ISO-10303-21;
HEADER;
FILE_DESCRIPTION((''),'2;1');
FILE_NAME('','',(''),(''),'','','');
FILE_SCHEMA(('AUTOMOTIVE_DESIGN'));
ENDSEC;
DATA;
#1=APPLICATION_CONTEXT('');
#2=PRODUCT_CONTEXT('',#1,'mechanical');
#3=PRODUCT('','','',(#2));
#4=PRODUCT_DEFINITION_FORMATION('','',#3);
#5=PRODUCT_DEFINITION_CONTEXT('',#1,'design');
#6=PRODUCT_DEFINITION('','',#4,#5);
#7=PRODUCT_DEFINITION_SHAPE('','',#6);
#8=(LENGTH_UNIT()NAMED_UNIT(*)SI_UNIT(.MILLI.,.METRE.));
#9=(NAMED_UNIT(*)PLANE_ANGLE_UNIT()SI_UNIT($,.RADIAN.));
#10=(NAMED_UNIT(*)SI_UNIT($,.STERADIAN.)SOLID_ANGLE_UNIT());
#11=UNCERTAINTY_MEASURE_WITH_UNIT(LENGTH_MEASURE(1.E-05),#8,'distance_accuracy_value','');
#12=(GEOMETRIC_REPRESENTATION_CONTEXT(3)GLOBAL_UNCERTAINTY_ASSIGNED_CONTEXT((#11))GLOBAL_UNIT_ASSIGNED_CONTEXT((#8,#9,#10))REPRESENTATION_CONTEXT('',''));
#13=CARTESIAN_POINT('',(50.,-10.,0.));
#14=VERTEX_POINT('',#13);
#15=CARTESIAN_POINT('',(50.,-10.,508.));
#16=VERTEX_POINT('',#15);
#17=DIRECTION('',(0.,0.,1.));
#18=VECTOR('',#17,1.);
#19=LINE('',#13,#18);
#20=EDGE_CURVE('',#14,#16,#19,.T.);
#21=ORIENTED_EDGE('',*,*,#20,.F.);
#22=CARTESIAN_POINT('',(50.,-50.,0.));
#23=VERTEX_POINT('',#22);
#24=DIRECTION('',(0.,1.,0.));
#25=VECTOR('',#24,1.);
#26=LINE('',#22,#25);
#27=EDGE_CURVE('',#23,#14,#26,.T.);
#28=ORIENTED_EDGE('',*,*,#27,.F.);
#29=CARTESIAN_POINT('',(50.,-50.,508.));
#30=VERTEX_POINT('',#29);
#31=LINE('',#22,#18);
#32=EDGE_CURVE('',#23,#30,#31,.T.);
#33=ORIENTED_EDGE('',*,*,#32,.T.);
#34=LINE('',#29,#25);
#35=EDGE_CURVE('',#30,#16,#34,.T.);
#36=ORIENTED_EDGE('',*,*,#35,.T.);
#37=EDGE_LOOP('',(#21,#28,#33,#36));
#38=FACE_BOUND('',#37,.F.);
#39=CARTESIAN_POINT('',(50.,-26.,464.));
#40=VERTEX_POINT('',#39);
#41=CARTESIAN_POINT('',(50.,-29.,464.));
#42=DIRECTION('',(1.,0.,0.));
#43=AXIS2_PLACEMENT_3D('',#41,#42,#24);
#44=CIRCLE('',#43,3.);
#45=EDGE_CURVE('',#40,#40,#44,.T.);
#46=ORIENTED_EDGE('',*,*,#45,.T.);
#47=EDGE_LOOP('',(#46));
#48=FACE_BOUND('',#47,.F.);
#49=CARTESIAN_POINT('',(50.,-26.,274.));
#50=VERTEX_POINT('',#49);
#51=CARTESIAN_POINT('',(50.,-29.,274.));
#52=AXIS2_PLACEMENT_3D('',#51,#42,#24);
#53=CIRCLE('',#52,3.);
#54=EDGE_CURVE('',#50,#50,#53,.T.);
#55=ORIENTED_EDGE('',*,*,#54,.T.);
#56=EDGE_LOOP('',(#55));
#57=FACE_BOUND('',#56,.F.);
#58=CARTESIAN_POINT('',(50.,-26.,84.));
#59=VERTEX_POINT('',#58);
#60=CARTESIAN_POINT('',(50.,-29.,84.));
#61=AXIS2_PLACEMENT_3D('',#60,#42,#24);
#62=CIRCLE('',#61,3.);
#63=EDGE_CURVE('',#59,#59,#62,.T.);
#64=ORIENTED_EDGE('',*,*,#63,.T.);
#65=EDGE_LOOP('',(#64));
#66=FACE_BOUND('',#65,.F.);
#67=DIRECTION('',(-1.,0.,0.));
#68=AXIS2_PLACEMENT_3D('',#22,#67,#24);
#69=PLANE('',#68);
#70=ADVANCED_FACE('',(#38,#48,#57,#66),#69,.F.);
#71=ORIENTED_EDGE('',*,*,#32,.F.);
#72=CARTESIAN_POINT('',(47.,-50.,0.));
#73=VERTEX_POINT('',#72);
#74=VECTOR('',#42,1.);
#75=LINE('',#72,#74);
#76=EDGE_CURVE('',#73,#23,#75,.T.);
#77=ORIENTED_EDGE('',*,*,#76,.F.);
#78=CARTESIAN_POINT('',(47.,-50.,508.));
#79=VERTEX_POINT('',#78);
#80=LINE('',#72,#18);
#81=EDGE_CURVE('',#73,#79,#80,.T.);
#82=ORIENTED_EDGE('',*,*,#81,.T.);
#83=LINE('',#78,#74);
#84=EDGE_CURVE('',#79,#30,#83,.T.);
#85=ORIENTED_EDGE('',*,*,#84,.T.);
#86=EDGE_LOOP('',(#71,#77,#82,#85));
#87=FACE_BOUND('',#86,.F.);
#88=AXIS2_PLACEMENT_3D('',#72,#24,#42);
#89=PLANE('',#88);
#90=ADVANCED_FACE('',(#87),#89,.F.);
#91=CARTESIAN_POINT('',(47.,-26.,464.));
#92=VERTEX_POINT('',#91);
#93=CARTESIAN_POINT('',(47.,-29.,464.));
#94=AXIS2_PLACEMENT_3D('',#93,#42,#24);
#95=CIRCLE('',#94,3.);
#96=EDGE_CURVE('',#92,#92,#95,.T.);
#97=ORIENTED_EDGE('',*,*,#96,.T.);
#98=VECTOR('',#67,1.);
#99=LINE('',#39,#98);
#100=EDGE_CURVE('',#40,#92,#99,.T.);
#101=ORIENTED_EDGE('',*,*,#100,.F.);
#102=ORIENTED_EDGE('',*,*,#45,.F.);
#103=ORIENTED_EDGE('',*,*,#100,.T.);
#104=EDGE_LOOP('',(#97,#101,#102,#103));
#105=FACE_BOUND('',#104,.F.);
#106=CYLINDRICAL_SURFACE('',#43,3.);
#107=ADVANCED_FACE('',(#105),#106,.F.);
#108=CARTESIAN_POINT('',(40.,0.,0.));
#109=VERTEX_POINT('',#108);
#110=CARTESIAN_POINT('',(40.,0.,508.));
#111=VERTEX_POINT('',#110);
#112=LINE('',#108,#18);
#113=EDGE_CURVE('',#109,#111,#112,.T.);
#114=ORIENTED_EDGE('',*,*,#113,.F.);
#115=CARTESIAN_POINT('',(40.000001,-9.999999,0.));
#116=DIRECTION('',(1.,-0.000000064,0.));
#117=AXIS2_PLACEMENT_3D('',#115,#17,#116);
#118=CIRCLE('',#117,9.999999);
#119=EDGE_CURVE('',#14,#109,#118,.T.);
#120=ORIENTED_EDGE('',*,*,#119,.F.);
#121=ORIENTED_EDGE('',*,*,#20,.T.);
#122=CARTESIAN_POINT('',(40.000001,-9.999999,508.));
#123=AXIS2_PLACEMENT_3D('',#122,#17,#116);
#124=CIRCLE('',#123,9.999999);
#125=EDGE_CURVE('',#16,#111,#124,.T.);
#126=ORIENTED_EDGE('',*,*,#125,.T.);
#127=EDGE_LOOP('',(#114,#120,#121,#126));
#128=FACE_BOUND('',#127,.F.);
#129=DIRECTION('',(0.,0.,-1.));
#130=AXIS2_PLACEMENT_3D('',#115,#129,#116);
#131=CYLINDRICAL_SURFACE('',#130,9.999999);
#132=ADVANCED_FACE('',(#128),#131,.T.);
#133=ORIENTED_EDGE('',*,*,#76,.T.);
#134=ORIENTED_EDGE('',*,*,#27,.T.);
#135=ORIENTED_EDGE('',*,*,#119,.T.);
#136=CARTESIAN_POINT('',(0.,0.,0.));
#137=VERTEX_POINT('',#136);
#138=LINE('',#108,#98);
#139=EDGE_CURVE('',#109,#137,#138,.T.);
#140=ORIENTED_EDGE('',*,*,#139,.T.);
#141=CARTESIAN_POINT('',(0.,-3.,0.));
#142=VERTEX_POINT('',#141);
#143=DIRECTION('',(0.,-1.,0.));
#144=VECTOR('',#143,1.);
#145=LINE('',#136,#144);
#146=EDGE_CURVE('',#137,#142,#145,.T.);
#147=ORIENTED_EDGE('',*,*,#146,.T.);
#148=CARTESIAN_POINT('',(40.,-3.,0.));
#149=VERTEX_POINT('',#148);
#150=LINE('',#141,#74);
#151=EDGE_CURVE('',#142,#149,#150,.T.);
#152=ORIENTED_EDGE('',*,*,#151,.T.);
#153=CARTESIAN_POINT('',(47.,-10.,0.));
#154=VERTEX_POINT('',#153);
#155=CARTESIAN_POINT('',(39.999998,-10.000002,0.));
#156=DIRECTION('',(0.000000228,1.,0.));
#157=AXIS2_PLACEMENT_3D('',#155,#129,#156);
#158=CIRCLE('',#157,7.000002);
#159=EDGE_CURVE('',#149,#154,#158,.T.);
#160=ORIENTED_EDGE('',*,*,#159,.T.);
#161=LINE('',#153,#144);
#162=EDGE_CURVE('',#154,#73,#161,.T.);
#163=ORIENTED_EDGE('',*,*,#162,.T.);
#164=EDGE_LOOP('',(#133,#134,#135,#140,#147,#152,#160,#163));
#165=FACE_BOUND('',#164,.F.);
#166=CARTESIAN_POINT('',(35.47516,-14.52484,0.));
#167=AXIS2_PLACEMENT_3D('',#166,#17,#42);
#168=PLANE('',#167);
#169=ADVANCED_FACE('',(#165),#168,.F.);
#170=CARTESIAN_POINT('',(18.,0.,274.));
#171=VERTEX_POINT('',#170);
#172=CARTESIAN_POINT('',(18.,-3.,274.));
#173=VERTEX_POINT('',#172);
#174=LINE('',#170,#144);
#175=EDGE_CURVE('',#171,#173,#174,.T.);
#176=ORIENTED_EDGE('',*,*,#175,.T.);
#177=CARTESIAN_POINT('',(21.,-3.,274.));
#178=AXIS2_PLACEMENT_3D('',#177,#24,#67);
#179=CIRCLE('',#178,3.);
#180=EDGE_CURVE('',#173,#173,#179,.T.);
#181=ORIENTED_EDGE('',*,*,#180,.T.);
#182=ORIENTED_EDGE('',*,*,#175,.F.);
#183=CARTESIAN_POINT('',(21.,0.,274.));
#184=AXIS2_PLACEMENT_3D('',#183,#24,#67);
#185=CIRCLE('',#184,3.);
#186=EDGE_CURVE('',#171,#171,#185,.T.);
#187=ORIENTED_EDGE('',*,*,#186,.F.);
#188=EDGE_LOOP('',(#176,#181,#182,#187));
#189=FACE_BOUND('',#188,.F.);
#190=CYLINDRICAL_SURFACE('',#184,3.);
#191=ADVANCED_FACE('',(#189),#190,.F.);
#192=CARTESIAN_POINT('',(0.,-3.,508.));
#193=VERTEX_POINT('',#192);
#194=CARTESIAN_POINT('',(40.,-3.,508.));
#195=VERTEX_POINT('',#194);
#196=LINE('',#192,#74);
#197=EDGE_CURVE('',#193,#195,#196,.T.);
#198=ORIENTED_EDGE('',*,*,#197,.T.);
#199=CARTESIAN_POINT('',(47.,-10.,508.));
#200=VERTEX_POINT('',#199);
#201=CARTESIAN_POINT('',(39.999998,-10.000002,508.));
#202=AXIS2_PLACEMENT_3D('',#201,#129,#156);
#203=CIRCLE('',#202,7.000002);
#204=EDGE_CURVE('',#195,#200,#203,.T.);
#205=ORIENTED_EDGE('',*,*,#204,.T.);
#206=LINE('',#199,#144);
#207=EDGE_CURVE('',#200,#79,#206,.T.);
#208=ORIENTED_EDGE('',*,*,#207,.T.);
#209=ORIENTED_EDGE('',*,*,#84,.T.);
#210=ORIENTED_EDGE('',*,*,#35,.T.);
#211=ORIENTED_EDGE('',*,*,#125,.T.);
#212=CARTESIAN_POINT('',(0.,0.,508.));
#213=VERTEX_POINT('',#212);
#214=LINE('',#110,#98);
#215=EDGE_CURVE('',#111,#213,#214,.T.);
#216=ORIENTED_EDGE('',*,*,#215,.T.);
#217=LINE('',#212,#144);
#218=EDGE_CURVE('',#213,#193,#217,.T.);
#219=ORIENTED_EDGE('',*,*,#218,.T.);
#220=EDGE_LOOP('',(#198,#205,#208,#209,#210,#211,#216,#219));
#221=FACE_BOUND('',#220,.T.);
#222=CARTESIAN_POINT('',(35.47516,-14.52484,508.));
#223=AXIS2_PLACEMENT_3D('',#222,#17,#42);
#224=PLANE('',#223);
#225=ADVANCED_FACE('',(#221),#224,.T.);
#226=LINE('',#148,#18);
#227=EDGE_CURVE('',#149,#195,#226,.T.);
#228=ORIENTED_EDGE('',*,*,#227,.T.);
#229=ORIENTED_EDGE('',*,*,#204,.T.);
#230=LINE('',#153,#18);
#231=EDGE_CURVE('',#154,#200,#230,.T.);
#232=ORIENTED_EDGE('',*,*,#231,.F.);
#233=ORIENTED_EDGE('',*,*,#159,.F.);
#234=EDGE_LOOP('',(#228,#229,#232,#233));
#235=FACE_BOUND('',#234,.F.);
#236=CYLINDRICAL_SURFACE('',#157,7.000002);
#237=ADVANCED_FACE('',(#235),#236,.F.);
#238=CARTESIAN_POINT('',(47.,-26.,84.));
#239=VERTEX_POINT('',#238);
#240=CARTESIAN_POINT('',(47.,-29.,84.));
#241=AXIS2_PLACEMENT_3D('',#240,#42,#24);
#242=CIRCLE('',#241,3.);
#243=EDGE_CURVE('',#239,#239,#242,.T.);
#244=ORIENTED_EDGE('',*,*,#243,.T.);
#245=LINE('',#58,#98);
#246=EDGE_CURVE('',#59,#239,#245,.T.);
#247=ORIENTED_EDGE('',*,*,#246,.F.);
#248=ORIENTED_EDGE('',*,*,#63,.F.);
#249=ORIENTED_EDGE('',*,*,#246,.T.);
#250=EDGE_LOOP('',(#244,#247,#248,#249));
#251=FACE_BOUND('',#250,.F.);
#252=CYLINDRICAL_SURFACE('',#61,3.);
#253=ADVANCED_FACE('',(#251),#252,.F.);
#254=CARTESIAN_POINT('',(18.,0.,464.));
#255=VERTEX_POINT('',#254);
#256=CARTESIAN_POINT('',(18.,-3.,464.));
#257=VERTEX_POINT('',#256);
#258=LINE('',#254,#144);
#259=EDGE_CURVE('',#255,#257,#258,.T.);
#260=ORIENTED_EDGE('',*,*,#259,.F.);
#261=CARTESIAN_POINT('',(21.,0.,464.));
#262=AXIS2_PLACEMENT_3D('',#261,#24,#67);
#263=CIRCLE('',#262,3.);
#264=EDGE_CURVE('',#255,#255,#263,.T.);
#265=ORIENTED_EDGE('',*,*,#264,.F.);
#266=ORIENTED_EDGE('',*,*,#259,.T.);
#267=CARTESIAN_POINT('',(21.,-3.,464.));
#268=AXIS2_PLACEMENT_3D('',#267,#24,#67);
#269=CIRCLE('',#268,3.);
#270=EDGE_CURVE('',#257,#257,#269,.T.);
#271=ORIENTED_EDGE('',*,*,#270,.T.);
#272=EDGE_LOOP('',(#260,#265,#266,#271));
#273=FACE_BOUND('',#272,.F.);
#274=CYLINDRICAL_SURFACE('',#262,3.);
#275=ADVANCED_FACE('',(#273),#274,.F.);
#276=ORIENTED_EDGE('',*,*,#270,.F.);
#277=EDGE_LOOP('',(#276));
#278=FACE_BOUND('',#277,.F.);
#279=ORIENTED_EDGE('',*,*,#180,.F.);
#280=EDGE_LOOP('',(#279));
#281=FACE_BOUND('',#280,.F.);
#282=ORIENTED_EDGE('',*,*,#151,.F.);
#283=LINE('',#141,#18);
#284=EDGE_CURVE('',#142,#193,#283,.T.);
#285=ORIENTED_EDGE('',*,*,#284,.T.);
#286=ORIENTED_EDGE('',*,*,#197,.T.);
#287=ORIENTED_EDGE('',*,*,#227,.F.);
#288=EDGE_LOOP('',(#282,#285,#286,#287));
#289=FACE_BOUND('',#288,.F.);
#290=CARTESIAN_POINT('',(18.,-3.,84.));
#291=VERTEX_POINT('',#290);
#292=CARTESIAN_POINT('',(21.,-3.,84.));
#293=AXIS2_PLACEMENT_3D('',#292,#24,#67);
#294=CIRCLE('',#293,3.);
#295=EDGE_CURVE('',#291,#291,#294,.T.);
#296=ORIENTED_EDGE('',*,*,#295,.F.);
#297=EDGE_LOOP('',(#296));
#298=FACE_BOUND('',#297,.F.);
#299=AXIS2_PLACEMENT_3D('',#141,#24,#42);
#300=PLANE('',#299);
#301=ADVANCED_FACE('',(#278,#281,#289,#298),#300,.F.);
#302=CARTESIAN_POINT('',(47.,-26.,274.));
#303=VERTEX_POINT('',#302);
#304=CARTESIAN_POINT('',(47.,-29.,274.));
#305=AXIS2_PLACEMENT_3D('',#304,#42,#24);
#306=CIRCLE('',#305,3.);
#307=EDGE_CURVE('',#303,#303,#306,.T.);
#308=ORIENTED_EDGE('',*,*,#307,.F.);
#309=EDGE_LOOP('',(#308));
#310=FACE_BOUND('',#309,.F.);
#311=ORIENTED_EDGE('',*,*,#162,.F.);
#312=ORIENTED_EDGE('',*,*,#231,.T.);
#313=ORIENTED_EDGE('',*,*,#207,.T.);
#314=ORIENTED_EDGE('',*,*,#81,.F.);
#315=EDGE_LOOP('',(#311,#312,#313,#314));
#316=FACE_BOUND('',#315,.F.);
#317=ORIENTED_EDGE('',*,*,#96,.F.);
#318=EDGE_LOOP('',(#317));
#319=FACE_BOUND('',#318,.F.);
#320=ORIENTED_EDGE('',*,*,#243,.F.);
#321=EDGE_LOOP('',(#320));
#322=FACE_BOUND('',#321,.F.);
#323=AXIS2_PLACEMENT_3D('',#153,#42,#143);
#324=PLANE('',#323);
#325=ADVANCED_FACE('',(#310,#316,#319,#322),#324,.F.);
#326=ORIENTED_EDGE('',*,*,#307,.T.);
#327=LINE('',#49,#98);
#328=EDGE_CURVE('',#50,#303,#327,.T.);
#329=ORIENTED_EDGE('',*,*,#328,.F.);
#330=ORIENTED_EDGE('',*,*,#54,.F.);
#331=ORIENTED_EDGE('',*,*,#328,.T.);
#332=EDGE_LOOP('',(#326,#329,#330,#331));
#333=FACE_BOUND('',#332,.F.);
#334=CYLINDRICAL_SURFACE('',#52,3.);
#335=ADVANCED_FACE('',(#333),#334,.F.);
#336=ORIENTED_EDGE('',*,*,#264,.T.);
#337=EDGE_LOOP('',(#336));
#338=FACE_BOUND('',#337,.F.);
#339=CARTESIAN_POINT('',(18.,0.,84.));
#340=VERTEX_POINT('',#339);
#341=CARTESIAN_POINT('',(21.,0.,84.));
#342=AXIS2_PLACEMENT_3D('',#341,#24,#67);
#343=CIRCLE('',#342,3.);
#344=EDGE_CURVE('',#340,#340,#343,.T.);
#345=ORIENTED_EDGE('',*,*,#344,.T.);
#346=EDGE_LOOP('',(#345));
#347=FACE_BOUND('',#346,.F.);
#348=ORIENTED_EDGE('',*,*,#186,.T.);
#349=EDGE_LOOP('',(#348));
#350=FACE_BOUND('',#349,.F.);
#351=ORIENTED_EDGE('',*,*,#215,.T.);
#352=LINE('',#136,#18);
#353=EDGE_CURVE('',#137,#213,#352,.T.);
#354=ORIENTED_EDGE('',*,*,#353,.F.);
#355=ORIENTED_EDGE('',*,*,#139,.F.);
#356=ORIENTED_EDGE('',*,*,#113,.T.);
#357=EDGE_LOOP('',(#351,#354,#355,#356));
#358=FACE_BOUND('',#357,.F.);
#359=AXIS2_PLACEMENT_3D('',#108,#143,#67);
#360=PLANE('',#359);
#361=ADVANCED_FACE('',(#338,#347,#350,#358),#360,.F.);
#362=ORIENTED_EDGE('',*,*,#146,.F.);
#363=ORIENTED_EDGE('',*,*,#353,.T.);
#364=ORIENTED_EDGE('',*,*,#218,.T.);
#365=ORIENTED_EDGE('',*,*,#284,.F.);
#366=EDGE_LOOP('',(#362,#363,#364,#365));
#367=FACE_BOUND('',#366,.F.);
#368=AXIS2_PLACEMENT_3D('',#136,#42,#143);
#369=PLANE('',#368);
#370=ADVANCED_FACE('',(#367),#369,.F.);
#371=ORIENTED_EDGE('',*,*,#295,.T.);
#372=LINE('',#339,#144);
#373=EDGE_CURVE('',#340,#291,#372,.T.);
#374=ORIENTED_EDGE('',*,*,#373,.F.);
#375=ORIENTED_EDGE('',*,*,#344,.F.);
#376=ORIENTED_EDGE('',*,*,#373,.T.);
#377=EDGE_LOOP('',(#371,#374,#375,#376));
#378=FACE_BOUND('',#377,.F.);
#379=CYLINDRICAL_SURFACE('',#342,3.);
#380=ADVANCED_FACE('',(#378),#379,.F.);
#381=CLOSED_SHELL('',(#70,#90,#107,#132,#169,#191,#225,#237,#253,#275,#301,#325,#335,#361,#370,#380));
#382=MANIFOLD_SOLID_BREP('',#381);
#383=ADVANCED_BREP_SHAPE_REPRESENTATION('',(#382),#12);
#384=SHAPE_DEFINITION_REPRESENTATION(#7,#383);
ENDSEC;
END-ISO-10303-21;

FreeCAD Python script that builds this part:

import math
import FreeCAD as App
import Part
import Sketcher
from FreeCAD import Vector
Q = App.Units.Quantity

doc = App.newDocument("Part")
body = doc.addObject("PartDesign::Body", "Body")

# Sketch on XY plane
sketch1 = body.newObject("Sketcher::SketchObject", "Sketch")
sketch1.AttachmentSupport = (doc.getObject("XY_Plane"), [""])
sketch1.MapMode = "FlatFace"
sketch1.addGeometry([
    Part.LineSegment(Vector(40, 0, 0), Vector(0, 0, 0)),  # 0
    Part.LineSegment(Vector(0, 0, 0), Vector(0, -3, 0)),  # 1
    Part.LineSegment(Vector(0, -3, 0), Vector(40, -3, 0)),  # 2
    Part.ArcOfCircle(Part.Circle(Vector(40, -10, 0), Vector(0, 0, 1), 7), math.radians(0), math.radians(90)),  # 3
    Part.LineSegment(Vector(47, -10, 0), Vector(47, -50, 0)),  # 4
    Part.LineSegment(Vector(47, -50, 0), Vector(50, -50, 0)),  # 5
    Part.LineSegment(Vector(50, -50, 0), Vector(50, -10, 0)),  # 6
    Part.ArcOfCircle(Part.Circle(Vector(40, -10, 0), Vector(0, 0, 1), 10), math.radians(0), math.radians(90)),  # 7
], False)
sketch1.addConstraint([
    Sketcher.Constraint("Coincident", 0, 2, 1, 1),
    Sketcher.Constraint("Coincident", 1, 2, 2, 1),
    Sketcher.Constraint("Tangent", 2, 2, 3, 2),
    Sketcher.Constraint("Tangent", 3, 1, 4, 1),
    Sketcher.Constraint("Coincident", 4, 2, 5, 1),
    Sketcher.Constraint("Coincident", 5, 2, 6, 1),
    Sketcher.Constraint("Tangent", 6, 2, 7, 1),
    Sketcher.Constraint("Tangent", 7, 2, 0, 1),
    Sketcher.Constraint("Horizontal", 0),
    Sketcher.Constraint("Vertical", 1),
    Sketcher.Constraint("Horizontal", 2),
    Sketcher.Constraint("Vertical", 4),
    Sketcher.Constraint("Horizontal", 5),
    Sketcher.Constraint("Vertical", 6),
    Sketcher.Constraint("Coincident", 0, 2, -1, 1),
    Sketcher.Constraint("Coincident", 7, 3, 3, 3),
    Sketcher.Constraint("Equal", 2, 4),
    Sketcher.Constraint("Radius", 3, Q("7.000002 mm")),
    Sketcher.Constraint("Radius", 7, Q("9.999999 mm")),
    Sketcher.Constraint("DistanceX", 0, 2, 0, 1, Q("40 mm")),
])
pad1 = body.newObject("PartDesign::Pad", "Pad")
pad1.Profile = sketch1
pad1.Length = 508

# Sketch on XZ plane
sketch2 = body.newObject("Sketcher::SketchObject", "Sketch001")
sketch2.AttachmentSupport = (doc.getObject("XZ_Plane"), [""])
sketch2.MapMode = "FlatFace"
sketch2.addGeometry([
    Part.Circle(Vector(21, 464, 0), Vector(0, 0, 1), 3),
    Part.Circle(Vector(21, 274, 0), Vector(0, 0, 1), 3),
    Part.Circle(Vector(21, 84, 0), Vector(0, 0, 1), 3),
], False)
sketch2.addConstraint([
    Sketcher.Constraint("Equal", 0, 1),
    Sketcher.Constraint("Equal", 1, 2),
    Sketcher.Constraint("Vertical", 0, 3, 1, 3),
    Sketcher.Constraint("Vertical", 1, 3, 2, 3),
    Sketcher.Constraint("Diameter", 0, Q("6 mm")),
    Sketcher.Constraint("DistanceX", -1, 1, 0, 3, Q("21 mm")),
    Sketcher.Constraint("DistanceY", -1, 1, 0, 3, Q("464 mm")),
    Sketcher.Constraint("DistanceY", -1, 1, 1, 3, Q("274 mm")),
    Sketcher.Constraint("DistanceY", -1, 1, 2, 3, Q("84 mm")),
])
pocket1 = body.newObject("PartDesign::Pocket", "Pocket")
pocket1.Profile = sketch2
pocket1.Type = "ThroughAll"
pocket1.Reversed = True

# Sketch on YZ plane
sketch3 = body.newObject("Sketcher::SketchObject", "Sketch002")
sketch3.AttachmentSupport = (doc.getObject("YZ_Plane"), [""])
sketch3.MapMode = "FlatFace"
sketch3.AttachmentOffset = App.Placement(Vector(0, 0, 50), App.Rotation())
sketch3.addGeometry([
    Part.Circle(Vector(-29, 464, 0), Vector(0, 0, 1), 3),
    Part.Circle(Vector(-29, 274, 0), Vector(0, 0, 1), 3),
    Part.Circle(Vector(-29, 84, 0), Vector(0, 0, 1), 3),
], False)
sketch3.addConstraint([
    Sketcher.Constraint("Equal", 0, 1),
    Sketcher.Constraint("Equal", 1, 2),
    Sketcher.Constraint("Vertical", 0, 3, 1, 3),
    Sketcher.Constraint("Vertical", 1, 3, 2, 3),
    Sketcher.Constraint("Diameter", 0, Q("6 mm")),
    Sketcher.Constraint("DistanceX", 0, 3, -1, 1, Q("29 mm")),
    Sketcher.Constraint("DistanceY", -1, 1, 0, 3, Q("464 mm")),
    Sketcher.Constraint("DistanceY", -1, 1, 1, 3, Q("274 mm")),
    Sketcher.Constraint("DistanceY", -1, 1, 2, 3, Q("84 mm")),
])
pocket2 = body.newObject("PartDesign::Pocket", "Pocket001")
pocket2.Profile = sketch3
pocket2.Type = "ThroughAll"

doc.recompute()
